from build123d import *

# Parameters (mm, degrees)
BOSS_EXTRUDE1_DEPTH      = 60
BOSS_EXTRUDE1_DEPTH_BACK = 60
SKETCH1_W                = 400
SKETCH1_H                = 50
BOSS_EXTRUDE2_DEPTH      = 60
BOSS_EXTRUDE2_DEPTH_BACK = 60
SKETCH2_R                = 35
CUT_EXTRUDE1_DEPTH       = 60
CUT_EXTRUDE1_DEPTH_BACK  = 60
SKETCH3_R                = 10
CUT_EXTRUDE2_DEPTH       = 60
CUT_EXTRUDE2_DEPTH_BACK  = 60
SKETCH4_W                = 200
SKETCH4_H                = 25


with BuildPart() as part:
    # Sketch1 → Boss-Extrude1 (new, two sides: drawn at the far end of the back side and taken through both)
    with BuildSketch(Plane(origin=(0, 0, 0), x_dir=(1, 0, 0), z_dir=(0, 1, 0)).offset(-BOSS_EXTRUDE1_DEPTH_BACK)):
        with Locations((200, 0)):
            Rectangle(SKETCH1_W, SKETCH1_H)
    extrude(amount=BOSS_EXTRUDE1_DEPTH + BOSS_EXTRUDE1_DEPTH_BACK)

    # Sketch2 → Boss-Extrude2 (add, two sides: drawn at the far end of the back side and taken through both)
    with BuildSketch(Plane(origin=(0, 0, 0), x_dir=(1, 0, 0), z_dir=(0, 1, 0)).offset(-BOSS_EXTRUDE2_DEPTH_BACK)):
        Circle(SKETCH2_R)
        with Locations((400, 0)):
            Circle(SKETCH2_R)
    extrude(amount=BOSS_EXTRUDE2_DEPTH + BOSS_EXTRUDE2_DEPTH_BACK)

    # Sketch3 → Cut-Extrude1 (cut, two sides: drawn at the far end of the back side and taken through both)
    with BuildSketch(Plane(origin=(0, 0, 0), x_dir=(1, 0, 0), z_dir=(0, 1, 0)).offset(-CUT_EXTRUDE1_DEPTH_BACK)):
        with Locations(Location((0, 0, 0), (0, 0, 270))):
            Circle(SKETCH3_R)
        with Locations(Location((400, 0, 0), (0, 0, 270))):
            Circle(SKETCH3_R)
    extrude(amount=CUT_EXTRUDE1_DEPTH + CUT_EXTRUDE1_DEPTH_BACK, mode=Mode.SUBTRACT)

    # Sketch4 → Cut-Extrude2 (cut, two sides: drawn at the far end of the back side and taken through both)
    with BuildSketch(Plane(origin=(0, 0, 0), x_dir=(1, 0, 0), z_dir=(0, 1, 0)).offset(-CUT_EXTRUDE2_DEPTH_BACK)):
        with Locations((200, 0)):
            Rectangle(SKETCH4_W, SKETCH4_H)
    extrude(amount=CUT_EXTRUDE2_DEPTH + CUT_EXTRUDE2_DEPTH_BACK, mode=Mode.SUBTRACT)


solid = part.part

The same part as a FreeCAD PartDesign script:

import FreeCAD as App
import Part
import Sketcher

V = App.Vector


def add_polygon(sketch, points):
    """Adds a closed chain of lines whose ends are joined by coincident constraints."""
    first, n = sketch.GeometryCount, len(points)
    for a, b in zip(points, points[1:] + points[:1]):
        sketch.addGeometry(Part.LineSegment(App.Vector(*a, 0), App.Vector(*b, 0)), False)
    for i in range(n):
        sketch.addConstraint(Sketcher.Constraint("Coincident", first + i, 2, first + (i + 1) % n, 1))

doc = App.newDocument("Part")
body = doc.addObject("PartDesign::Body", "Body")

# Sketch on XZ plane
sketch1 = body.newObject("Sketcher::SketchObject", "Sketch")
sketch1.AttachmentSupport = (doc.getObject("XZ_Plane"), [""])
sketch1.MapMode = "FlatFace"
add_polygon(sketch1, [(0, -25), (0, 25), (400, 25), (400, -25)])  # lines 0-3
sketch1.addConstraint([
    Sketcher.Constraint("Vertical", 0),
    Sketcher.Constraint("Horizontal", 1),
    Sketcher.Constraint("Vertical", 2),
    Sketcher.Constraint("Horizontal", 3),
    Sketcher.Constraint("Symmetric", 0, 2, 3, 2, -1, 1),
    Sketcher.Constraint("DistanceX", 1, 1, 1, 2, 400.0),
    Sketcher.Constraint("DistanceY", 0, 1, 0, 2, 50.0),
])
pad1 = body.newObject("PartDesign::Pad", "Pad")
pad1.Profile = sketch1
pad1.Type = "TwoLengths"
pad1.Length = 60
pad1.Length2 = 60
pad1.Reversed = True

# Sketch on XZ plane
sketch2 = body.newObject("Sketcher::SketchObject", "Sketch001")
sketch2.AttachmentSupport = (doc.getObject("XZ_Plane"), [""])
sketch2.MapMode = "FlatFace"
sketch2.addGeometry([
    Part.Circle(V(0, 0, 0), V(0, 0, 1), 35),
    Part.Circle(V(400, 0, 0), V(0, 0, 1), 35),
], False)
sketch2.addConstraint([
    Sketcher.Constraint("Coincident", 0, 3, -1, 1),
    Sketcher.Constraint("Equal", 0, 1),
    Sketcher.Constraint("PointOnObject", 1, 3, -1),
    Sketcher.Constraint("Diameter", 0, 70.0),
    Sketcher.Constraint("DistanceX", -1, 1, 1, 3, 400.0),
])
pad2 = body.newObject("PartDesign::Pad", "Pad001")
pad2.Profile = sketch2
pad2.Type = "TwoLengths"
pad2.Length = 60
pad2.Length2 = 60
pad2.Reversed = True

# Sketch on XZ plane
sketch3 = body.newObject("Sketcher::SketchObject", "Sketch002")
sketch3.AttachmentSupport = (doc.getObject("XZ_Plane"), [""])
sketch3.MapMode = "FlatFace"
sketch3.addGeometry([
    Part.Circle(V(0, 0, 0), V(0, 0, 1), 10),
    Part.Circle(V(400, 0, 0), V(0, 0, 1), 10),
], False)
sketch3.addConstraint([
    Sketcher.Constraint("Coincident", 0, 3, -1, 1),
    Sketcher.Constraint("Equal", 0, 1),
    Sketcher.Constraint("PointOnObject", 1, 3, -1),
    Sketcher.Constraint("Diameter", 0, 20.0),
    Sketcher.Constraint("DistanceX", -1, 1, 1, 3, 400.0),
])
pocket1 = body.newObject("PartDesign::Pocket", "Pocket")
pocket1.Profile = sketch3
pocket1.Type = "ThroughAll"
pocket1.Midplane = True

# Sketch on XZ plane
sketch4 = body.newObject("Sketcher::SketchObject", "Sketch003")
sketch4.AttachmentSupport = (doc.getObject("XZ_Plane"), [""])
sketch4.MapMode = "FlatFace"
add_polygon(sketch4, [(100, -12), (100, 12), (300, 12), (300, -12)])  # lines 0-3
sketch4.addConstraint([
    Sketcher.Constraint("Vertical", 0),
    Sketcher.Constraint("Horizontal", 1),
    Sketcher.Constraint("Vertical", 2),
    Sketcher.Constraint("Horizontal", 3),
    Sketcher.Constraint("DistanceX", 1, 1, 1, 2, 200.0),
    Sketcher.Constraint("DistanceY", 0, 1, 0, 2, 25.0),
    Sketcher.Constraint("DistanceX", -1, 1, 0, 2, 100.0),
    Sketcher.Constraint("DistanceY", -1, 1, 0, 2, 12.5),
])
pocket2 = body.newObject("PartDesign::Pocket", "Pocket001")
pocket2.Profile = sketch4
pocket2.Type = "ThroughAll"
pocket2.Midplane = True

doc.recompute()
